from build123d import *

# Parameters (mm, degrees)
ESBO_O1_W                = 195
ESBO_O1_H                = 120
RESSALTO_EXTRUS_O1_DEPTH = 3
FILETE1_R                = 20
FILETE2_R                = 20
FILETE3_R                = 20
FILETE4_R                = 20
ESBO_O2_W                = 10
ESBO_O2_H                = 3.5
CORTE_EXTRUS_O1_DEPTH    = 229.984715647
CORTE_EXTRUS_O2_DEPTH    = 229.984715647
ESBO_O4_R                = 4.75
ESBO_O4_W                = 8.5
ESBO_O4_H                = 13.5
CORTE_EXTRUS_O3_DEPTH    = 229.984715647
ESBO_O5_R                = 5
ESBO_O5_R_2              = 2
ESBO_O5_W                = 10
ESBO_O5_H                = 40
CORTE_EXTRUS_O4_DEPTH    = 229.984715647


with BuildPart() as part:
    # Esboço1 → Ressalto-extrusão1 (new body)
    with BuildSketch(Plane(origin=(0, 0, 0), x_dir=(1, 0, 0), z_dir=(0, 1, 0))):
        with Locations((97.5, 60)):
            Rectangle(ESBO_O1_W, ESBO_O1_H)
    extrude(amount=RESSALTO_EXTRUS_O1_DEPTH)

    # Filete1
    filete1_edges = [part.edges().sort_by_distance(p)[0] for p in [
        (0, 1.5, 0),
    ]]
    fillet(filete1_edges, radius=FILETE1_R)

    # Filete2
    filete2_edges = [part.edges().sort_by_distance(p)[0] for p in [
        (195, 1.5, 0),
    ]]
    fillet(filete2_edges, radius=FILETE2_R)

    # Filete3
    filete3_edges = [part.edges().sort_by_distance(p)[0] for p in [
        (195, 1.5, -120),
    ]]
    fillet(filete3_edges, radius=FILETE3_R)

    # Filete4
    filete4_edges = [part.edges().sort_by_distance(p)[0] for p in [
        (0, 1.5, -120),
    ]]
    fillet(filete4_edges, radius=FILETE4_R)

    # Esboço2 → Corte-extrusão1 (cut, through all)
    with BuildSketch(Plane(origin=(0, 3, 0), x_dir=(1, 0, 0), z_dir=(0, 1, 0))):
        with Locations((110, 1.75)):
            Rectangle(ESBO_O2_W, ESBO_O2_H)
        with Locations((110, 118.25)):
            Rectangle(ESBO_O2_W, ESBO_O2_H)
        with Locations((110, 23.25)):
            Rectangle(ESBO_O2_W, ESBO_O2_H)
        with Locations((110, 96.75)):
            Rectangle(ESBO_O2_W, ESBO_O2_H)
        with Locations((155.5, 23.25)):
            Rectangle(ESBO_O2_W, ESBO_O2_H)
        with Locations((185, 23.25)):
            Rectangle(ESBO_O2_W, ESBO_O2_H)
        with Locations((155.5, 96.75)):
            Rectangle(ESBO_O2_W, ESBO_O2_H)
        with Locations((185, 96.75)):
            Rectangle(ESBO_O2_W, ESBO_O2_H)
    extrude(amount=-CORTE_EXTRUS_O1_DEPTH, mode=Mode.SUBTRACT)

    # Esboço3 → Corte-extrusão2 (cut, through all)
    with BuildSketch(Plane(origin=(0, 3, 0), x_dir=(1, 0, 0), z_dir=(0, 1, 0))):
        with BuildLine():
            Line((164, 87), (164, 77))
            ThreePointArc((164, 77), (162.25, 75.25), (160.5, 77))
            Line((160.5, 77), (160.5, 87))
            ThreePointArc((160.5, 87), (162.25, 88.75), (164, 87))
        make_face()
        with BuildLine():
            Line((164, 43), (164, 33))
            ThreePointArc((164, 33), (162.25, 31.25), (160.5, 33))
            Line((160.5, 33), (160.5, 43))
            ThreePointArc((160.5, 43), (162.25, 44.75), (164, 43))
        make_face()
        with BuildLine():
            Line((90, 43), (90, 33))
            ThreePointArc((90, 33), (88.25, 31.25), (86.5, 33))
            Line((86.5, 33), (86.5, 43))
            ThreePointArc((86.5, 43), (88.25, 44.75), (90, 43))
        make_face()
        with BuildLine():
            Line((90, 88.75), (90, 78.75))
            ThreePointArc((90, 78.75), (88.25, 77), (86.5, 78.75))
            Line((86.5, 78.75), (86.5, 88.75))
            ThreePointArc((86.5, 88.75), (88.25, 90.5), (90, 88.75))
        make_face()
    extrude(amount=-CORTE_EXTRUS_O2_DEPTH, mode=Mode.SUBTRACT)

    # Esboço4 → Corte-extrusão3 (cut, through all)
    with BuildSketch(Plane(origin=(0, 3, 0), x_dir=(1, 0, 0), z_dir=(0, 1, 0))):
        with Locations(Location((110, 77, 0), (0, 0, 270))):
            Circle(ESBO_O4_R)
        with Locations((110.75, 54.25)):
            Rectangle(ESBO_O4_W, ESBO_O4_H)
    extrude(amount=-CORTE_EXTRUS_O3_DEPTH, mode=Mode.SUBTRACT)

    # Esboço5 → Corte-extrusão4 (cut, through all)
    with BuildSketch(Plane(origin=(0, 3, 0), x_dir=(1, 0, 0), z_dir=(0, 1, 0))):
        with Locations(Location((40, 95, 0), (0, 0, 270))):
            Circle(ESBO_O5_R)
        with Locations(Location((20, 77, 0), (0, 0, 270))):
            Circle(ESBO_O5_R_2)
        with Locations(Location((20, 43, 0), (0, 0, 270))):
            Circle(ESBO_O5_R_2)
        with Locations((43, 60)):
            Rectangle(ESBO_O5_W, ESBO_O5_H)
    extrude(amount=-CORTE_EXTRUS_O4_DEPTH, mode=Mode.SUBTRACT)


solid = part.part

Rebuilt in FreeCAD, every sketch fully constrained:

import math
import FreeCAD as App
import Part
import Sketcher
from FreeCAD import Vector
Q = App.Units.Quantity


def edges_at(feature, points):
    """Names of the edges that pass closest to the given points."""
    edges = feature.Shape.Edges
    near = lambda p: min(range(len(edges)), key=lambda i: edges[i].distToShape(Part.Vertex(*p))[0])
    return sorted({f"Edge{near(p) + 1}" for p in points})


def add_polygon(sketch, points):
    """Adds a closed chain of lines whose ends are joined by coincident constraints."""
    first, n = sketch.GeometryCount, len(points)
    for a, b in zip(points, points[1:] + points[:1]):
        sketch.addGeometry(Part.LineSegment(App.Vector(*a, 0), App.Vector(*b, 0)), False)
    for i in range(n):
        sketch.addConstraint(Sketcher.Constraint("Coincident", first + i, 2, first + (i + 1) % n, 1))

doc = App.newDocument("Part")
body = doc.addObject("PartDesign::Body", "Body")

# Sketch on XZ plane
sketch1 = body.newObject("Sketcher::SketchObject", "Sketch")
sketch1.AttachmentSupport = (doc.getObject("XZ_Plane"), [""])
sketch1.MapMode = "FlatFace"
add_polygon(sketch1, [(0, -120), (0, 0), (195, 0), (195, -120)])  # lines 0-3
sketch1.addConstraint([
    Sketcher.Constraint("Vertical", 0),
    Sketcher.Constraint("Horizontal", 1),
    Sketcher.Constraint("Vertical", 2),
    Sketcher.Constraint("Horizontal", 3),
    Sketcher.Constraint("Coincident", 0, 2, -1, 1),
    Sketcher.Constraint("DistanceX", 1, 1, 1, 2, Q("195 mm")),
    Sketcher.Constraint("DistanceY", 0, 1, 0, 2, Q("120 mm")),
])
pad1 = body.newObject("PartDesign::Pad", "Pad")
pad1.Profile = sketch1
pad1.Length = 3
pad1.Reversed = True
doc.recompute()

fillet = body.newObject("PartDesign::Fillet", "Fillet")
fillet.Base = (pad1, edges_at(pad1, [(0, 1.5, 0)]))
fillet.Radius = 20
doc.recompute()

fillet2 = body.newObject("PartDesign::Fillet", "Fillet001")
fillet2.Base = (fillet, edges_at(fillet, [(195, 1.5, 0)]))
fillet2.Radius = 20
doc.recompute()

fillet3 = body.newObject("PartDesign::Fillet", "Fillet002")
fillet3.Base = (fillet2, edges_at(fillet2, [(195, 1.5, -120)]))
fillet3.Radius = 20
doc.recompute()

fillet4 = body.newObject("PartDesign::Fillet", "Fillet003")
fillet4.Base = (fillet3, edges_at(fillet3, [(0, 1.5, -120)]))
fillet4.Radius = 20

# Sketch on XZ plane
sketch2 = body.newObject("Sketcher::SketchObject", "Sketch001")
sketch2.AttachmentSupport = (doc.getObject("XZ_Plane"), [""])
sketch2.MapMode = "FlatFace"
sketch2.AttachmentOffset = App.Placement(Vector(0, 0, -3), App.Rotation())
add_polygon(sketch2, [(105, -3.5), (105, 0), (115, 0), (115, -3.5)])  # lines 0-3
add_polygon(sketch2, [(105, -120), (105, -116.5), (115, -116.5), (115, -120)])  # lines 4-7
add_polygon(sketch2, [(105, -25), (105, -21.5), (115, -21.5), (115, -25)])  # lines 8-11
add_polygon(sketch2, [(105, -98.5), (105, -95), (115, -95), (115, -98.5)])  # lines 12-15
add_polygon(sketch2, [(150.5, -25), (150.5, -21.5), (160.5, -21.5), (160.5, -25)])  # lines 16-19
add_polygon(sketch2, [(180, -25), (180, -21.5), (190, -21.5), (190, -25)])  # lines 20-23
add_polygon(sketch2, [(150.5, -98.5), (150.5, -95), (160.5, -95), (160.5, -98.5)])  # lines 24-27
add_polygon(sketch2, [(180, -98.5), (180, -95), (190, -95), (190, -98.5)])  # lines 28-31
sketch2.addConstraint([
    Sketcher.Constraint("Vertical", 0),
    Sketcher.Constraint("Horizontal", 1),
    Sketcher.Constraint("Vertical", 2),
    Sketcher.Constraint("Horizontal", 3),
    Sketcher.Constraint("Vertical", 4),
    Sketcher.Constraint("Horizontal", 5),
    Sketcher.Constraint("Vertical", 6),
    Sketcher.Constraint("Horizontal", 7),
    Sketcher.Constraint("Vertical", 8),
    Sketcher.Constraint("Horizontal", 9),
    Sketcher.Constraint("Vertical", 10),
    Sketcher.Constraint("Horizontal", 11),
    Sketcher.Constraint("Vertical", 12),
    Sketcher.Constraint("Horizontal", 13),
    Sketcher.Constraint("Vertical", 14),
    Sketcher.Constraint("Horizontal", 15),
    Sketcher.Constraint("Vertical", 16),
    Sketcher.Constraint("Horizontal", 17),
    Sketcher.Constraint("Vertical", 18),
    Sketcher.Constraint("Horizontal", 19),
    Sketcher.Constraint("Vertical", 20),
    Sketcher.Constraint("Horizontal", 21),
    Sketcher.Constraint("Vertical", 22),
    Sketcher.Constraint("Horizontal", 23),
    Sketcher.Constraint("Vertical", 24),
    Sketcher.Constraint("Horizontal", 25),
    Sketcher.Constraint("Vertical", 26),
    Sketcher.Constraint("Horizontal", 27),
    Sketcher.Constraint("Vertical", 28),
    Sketcher.Constraint("Horizontal", 29),
    Sketcher.Constraint("Vertical", 30),
    Sketcher.Constraint("Horizontal", 31),
    Sketcher.Constraint("PointOnObject", 0, 2, -1),
    Sketcher.Constraint("Horizontal", 9, 2, 16, 2),
    Sketcher.Constraint("Horizontal", 11, 2, 18, 2),
    Sketcher.Constraint("Horizontal", 17, 2, 20, 2),
    Sketcher.Constraint("Horizontal", 19, 2, 22, 2),
    Sketcher.Constraint("Horizontal", 13, 2, 24, 2),
    Sketcher.Constraint("Horizontal", 15, 2, 26, 2),
    Sketcher.Constraint("Horizontal", 25, 2, 28, 2),
    Sketcher.Constraint("Horizontal", 27, 2, 30, 2),
    Sketcher.Constraint("Vertical", 3, 2, 4, 2),
    Sketcher.Constraint("Vertical", 2, 2, 5, 2),
    Sketcher.Constraint("Vertical", 7, 2, 8, 2),
    Sketcher.Constraint("Vertical", 6, 2, 9, 2),
    Sketcher.Constraint("Vertical", 11, 2, 12, 2),
    Sketcher.Constraint("Vertical", 10, 2, 13, 2),
    Sketcher.Constraint("Vertical", 19, 2, 24, 2),
    Sketcher.Constraint("Vertical", 18, 2, 25, 2),
    Sketcher.Constraint("Vertical", 23, 2, 28, 2),
    Sketcher.Constraint("Vertical", 22, 2, 29, 2),
    Sketcher.Constraint("Equal", 15, 17),
    Sketcher.Constraint("Equal", 19, 21),
    Sketcher.Constraint("Equal", 2, 4),
    Sketcher.Constraint("Equal", 6, 8),
    Sketcher.Constraint("Equal", 10, 12),
    Sketcher.Constraint("DistanceX", 1, 1, 1, 2, Q("10 mm")),
    Sketcher.Constraint("DistanceY", 0, 1, 0, 2, Q("3.5 mm")),
    Sketcher.Constraint("DistanceX", -1, 1, 0, 2, Q("105 mm")),
    Sketcher.Constraint("DistanceY", 6, 2, -1, 1, Q("120 mm")),
    Sketcher.Constraint("DistanceY", 10, 2, -1, 1, Q("25 mm")),
    Sketcher.Constraint("DistanceY", 12, 2, -1, 1, Q("95 mm")),
    Sketcher.Constraint("DistanceX", -1, 1, 20, 2, Q("180 mm")),
    Sketcher.Constraint("DistanceX", -1, 1, 16, 2, Q("150.5 mm")),
])
pocket1 = body.newObject("PartDesign::Pocket", "Pocket")
pocket1.Profile = sketch2
pocket1.Type = "ThroughAll"
pocket1.Reversed = True

# Sketch on XZ plane
sketch3 = body.newObject("Sketcher::SketchObject", "Sketch002")
sketch3.AttachmentSupport = (doc.getObject("XZ_Plane"), [""])
sketch3.MapMode = "FlatFace"
sketch3.AttachmentOffset = App.Placement(Vector(0, 0, -3), App.Rotation())
sketch3.addGeometry([
    Part.LineSegment(Vector(164, -77, 0), Vector(164, -87, 0)),  # 0
    Part.ArcOfCircle(Part.Circle(Vector(162.25, -87, 0), Vector(0, 0, 1), 1.75), math.radians(180), math.radians(360)),  # 1
    Part.LineSegment(Vector(160.5, -87, 0), Vector(160.5, -77, 0)),  # 2
    Part.ArcOfCircle(Part.Circle(Vector(162.25, -77, 0), Vector(0, 0, 1), 1.75), math.radians(0), math.radians(180)),  # 3
    Part.LineSegment(Vector(164, -33, 0), Vector(164, -43, 0)),  # 4
    Part.ArcOfCircle(Part.Circle(Vector(162.25, -43, 0), Vector(0, 0, 1), 1.75), math.radians(180), math.radians(360)),  # 5
    Part.LineSegment(Vector(160.5, -43, 0), Vector(160.5, -33, 0)),  # 6
    Part.ArcOfCircle(Part.Circle(Vector(162.25, -33, 0), Vector(0, 0, 1), 1.75), math.radians(0), math.radians(180)),  # 7
    Part.LineSegment(Vector(90, -33, 0), Vector(90, -43, 0)),  # 8
    Part.ArcOfCircle(Part.Circle(Vector(88.25, -43, 0), Vector(0, 0, 1), 1.75), math.radians(180), math.radians(360)),  # 9
    Part.LineSegment(Vector(86.5, -43, 0), Vector(86.5, -33, 0)),  # 10
    Part.ArcOfCircle(Part.Circle(Vector(88.25, -33, 0), Vector(0, 0, 1), 1.75), math.radians(0), math.radians(180)),  # 11
    Part.LineSegment(Vector(90, -78.75, 0), Vector(90, -88.75, 0)),  # 12
    Part.ArcOfCircle(Part.Circle(Vector(88.25, -88.75, 0), Vector(0, 0, 1), 1.75), math.radians(180), math.radians(360)),  # 13
    Part.LineSegment(Vector(86.5, -88.75, 0), Vector(86.5, -78.75, 0)),  # 14
    Part.ArcOfCircle(Part.Circle(Vector(88.25, -78.75, 0), Vector(0, 0, 1), 1.75), math.radians(0), math.radians(180)),  # 15
], False)
sketch3.addConstraint([
    Sketcher.Constraint("Tangent", 0, 2, 1, 2),
    Sketcher.Constraint("Tangent", 1, 1, 2, 1),
    Sketcher.Constraint("Tangent", 2, 2, 3, 2),
    Sketcher.Constraint("Tangent", 3, 1, 0, 1),
    Sketcher.Constraint("Tangent", 4, 2, 5, 2),
    Sketcher.Constraint("Tangent", 5, 1, 6, 1),
    Sketcher.Constraint("Tangent", 6, 2, 7, 2),
    Sketcher.Constraint("Tangent", 7, 1, 4, 1),
    Sketcher.Constraint("Tangent", 8, 2, 9, 2),
    Sketcher.Constraint("Tangent", 9, 1, 10, 1),
    Sketcher.Constraint("Tangent", 10, 2, 11, 2),
    Sketcher.Constraint("Tangent", 11, 1, 8, 1),
    Sketcher.Constraint("Tangent", 12, 2, 13, 2),
    Sketcher.Constraint("Tangent", 13, 1, 14, 1),
    Sketcher.Constraint("Tangent", 14, 2, 15, 2),
    Sketcher.Constraint("Tangent", 15, 1, 12, 1),
    Sketcher.Constraint("Vertical", 0),
    Sketcher.Constraint("Vertical", 2),
    Sketcher.Constraint("Vertical", 4),
    Sketcher.Constraint("Vertical", 6),
    Sketcher.Constraint("Vertical", 8),
    Sketcher.Constraint("Vertical", 10),
    Sketcher.Constraint("Vertical", 12),
    Sketcher.Constraint("Vertical", 14),
    Sketcher.Constraint("Equal", 3, 5),
    Sketcher.Constraint("Equal", 7, 9),
    Sketcher.Constraint("Equal", 11, 13),
    Sketcher.Constraint("Horizontal", 5, 3, 9, 3),
    Sketcher.Constraint("Horizontal", 7, 3, 11, 3),
    Sketcher.Constraint("Vertical", 3, 3, 5, 3),
    Sketcher.Constraint("Vertical", 11, 3, 13, 3),
    Sketcher.Constraint("Equal", 2, 4),
    Sketcher.Constraint("Equal", 10, 12),
    Sketcher.Constraint("DistanceY", 0, 2, 0, 1, Q("10 mm")),
    Sketcher.Constraint("Radius", 1, Q("1.75 mm")),
    Sketcher.Constraint("DistanceY", 1, 3, -1, 1, Q("87 mm")),
    Sketcher.Constraint("DistanceY", 5, 3, -1, 1, Q("43 mm")),
    Sketcher.Constraint("DistanceX", -1, 1, 0, 2, Q("164 mm")),
    Sketcher.Constraint("DistanceX", -1, 1, 8, 2, Q("90 mm")),
    Sketcher.Constraint("DistanceY", 13, 3, -1, 1, Q("88.75 mm")),
])
pocket2 = body.newObject("PartDesign::Pocket", "Pocket001")
pocket2.Profile = sketch3
pocket2.Type = "ThroughAll"
pocket2.Reversed = True

# Sketch on XZ plane
sketch4 = body.newObject("Sketcher::SketchObject", "Sketch003")
sketch4.AttachmentSupport = (doc.getObject("XZ_Plane"), [""])
sketch4.MapMode = "FlatFace"
sketch4.AttachmentOffset = App.Placement(Vector(0, 0, -3), App.Rotation())
sketch4.addGeometry(Part.Circle(Vector(110, -77, 0), Vector(0, 0, 1), 4.75), False)  # 0
add_polygon(sketch4, [(106.5, -61), (106.5, -47.5), (115, -47.5), (115, -61)])  # lines 1-4
sketch4.addConstraint([
    Sketcher.Constraint("Vertical", 1),
    Sketcher.Constraint("Horizontal", 2),
    Sketcher.Constraint("Vertical", 3),
    Sketcher.Constraint("Horizontal", 4),
    Sketcher.Constraint("Diameter", 0, Q("9.5 mm")),
    Sketcher.Constraint("DistanceX", 2, 1, 2, 2, Q("8.5 mm")),
    Sketcher.Constraint("DistanceY", 1, 1, 1, 2, Q("13.5 mm")),
    Sketcher.Constraint("DistanceX", -1, 1, 0, 3, Q("110 mm")),
    Sketcher.Constraint("DistanceY", 0, 3, -1, 1, Q("77 mm")),
    Sketcher.Constraint("DistanceX", -1, 1, 2, 2, Q("115 mm")),
    Sketcher.Constraint("DistanceY", 3, 2, -1, 1, Q("61 mm")),
])
pocket3 = body.newObject("PartDesign::Pocket", "Pocket002")
pocket3.Profile = sketch4
pocket3.Type = "ThroughAll"
pocket3.Reversed = True

# Sketch on XZ plane
sketch5 = body.newObject("Sketcher::SketchObject", "Sketch004")
sketch5.AttachmentSupport = (doc.getObject("XZ_Plane"), [""])
sketch5.MapMode = "FlatFace"
sketch5.AttachmentOffset = App.Placement(Vector(0, 0, -3), App.Rotation())
sketch5.addGeometry(Part.Circle(Vector(40, -95, 0), Vector(0, 0, 1), 5), False)  # 0
sketch5.addGeometry(Part.Circle(Vector(20, -77, 0), Vector(0, 0, 1), 2), False)  # 1
sketch5.addGeometry(Part.Circle(Vector(20, -43, 0), Vector(0, 0, 1), 2), False)  # 2
add_polygon(sketch5, [(38, -80), (38, -40), (48, -40), (48, -80)])  # lines 3-6
sketch5.addConstraint([
    Sketcher.Constraint("Vertical", 3),
    Sketcher.Constraint("Horizontal", 4),
    Sketcher.Constraint("Vertical", 5),
    Sketcher.Constraint("Horizontal", 6),
    Sketcher.Constraint("Equal", 1, 2),
    Sketcher.Constraint("Vertical", 1, 3, 2, 3),
    Sketcher.Constraint("Diameter", 0, Q("10 mm")),
    Sketcher.Constraint("Diameter", 1, Q("4 mm")),
    Sketcher.Constraint("DistanceX", 4, 1, 4, 2, Q("10 mm")),
    Sketcher.Constraint("DistanceY", 3, 1, 3, 2, Q("40 mm")),
    Sketcher.Constraint("DistanceX", -1, 1, 0, 3, Q("40 mm")),
    Sketcher.Constraint("DistanceY", 0, 3, -1, 1, Q("95 mm")),
    Sketcher.Constraint("DistanceX", -1, 1, 1, 3, Q("20 mm")),
    Sketcher.Constraint("DistanceY", 1, 3, -1, 1, Q("77 mm")),
    Sketcher.Constraint("DistanceY", 2, 3, -1, 1, Q("43 mm")),
    Sketcher.Constraint("DistanceX", -1, 1, 3, 2, Q("38 mm")),
    Sketcher.Constraint("DistanceY", 3, 2, -1, 1, Q("40 mm")),
])
pocket4 = body.newObject("PartDesign::Pocket", "Pocket003")
pocket4.Profile = sketch5
pocket4.Type = "ThroughAll"
pocket4.Reversed = True

doc.recompute()
